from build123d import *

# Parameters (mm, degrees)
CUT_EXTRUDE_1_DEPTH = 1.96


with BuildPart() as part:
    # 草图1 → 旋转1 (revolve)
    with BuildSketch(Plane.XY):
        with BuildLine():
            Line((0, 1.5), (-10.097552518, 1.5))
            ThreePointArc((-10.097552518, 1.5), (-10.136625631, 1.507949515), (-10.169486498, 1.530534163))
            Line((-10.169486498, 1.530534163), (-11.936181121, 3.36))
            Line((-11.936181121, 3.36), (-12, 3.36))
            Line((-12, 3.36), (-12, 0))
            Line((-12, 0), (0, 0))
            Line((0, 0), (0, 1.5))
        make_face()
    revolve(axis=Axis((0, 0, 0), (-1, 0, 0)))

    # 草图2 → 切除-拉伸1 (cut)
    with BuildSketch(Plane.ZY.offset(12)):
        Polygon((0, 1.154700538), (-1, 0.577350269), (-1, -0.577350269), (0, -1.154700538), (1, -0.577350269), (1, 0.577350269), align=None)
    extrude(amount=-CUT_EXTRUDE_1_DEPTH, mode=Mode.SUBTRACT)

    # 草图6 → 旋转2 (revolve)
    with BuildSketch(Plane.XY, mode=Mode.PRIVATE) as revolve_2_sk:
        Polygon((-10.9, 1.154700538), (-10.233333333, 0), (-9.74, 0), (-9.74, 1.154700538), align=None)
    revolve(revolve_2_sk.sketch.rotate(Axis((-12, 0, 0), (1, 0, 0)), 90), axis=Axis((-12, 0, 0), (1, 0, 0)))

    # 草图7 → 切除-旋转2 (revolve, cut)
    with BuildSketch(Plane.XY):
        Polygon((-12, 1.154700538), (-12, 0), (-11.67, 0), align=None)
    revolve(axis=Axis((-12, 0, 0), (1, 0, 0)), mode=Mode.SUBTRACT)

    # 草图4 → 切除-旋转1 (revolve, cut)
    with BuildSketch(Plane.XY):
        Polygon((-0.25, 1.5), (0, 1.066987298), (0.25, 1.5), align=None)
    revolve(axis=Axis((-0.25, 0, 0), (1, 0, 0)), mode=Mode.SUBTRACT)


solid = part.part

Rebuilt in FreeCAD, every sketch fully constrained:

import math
import FreeCAD as App
import Part
import Sketcher
from FreeCAD import Vector
Q = App.Units.Quantity


def add_polygon(sketch, points):
    """Adds a closed chain of lines whose ends are joined by coincident constraints."""
    first, n = sketch.GeometryCount, len(points)
    for a, b in zip(points, points[1:] + points[:1]):
        sketch.addGeometry(Part.LineSegment(App.Vector(*a, 0), App.Vector(*b, 0)), False)
    for i in range(n):
        sketch.addConstraint(Sketcher.Constraint("Coincident", first + i, 2, first + (i + 1) % n, 1))

doc = App.newDocument("Part")
body = doc.addObject("PartDesign::Body", "Body")

# Sketch on XY plane
sketch1 = body.newObject("Sketcher::SketchObject", "Sketch")
sketch1.AttachmentSupport = (doc.getObject("XY_Plane"), [""])
sketch1.MapMode = "FlatFace"
sketch1.addGeometry(Part.LineSegment(Vector(0, 1.5, 0), Vector(-10.1, 1.5, 0)), False)
sketch1.addGeometry(Part.ArcOfCircle(Part.Circle(Vector(-10.1, 1.6, 0), Vector(0, 0, 1), 0.1), math.radians(-136), math.radians(-90)), False)
sketch1.addGeometry(Part.LineSegment(Vector(-10.17, 1.53, 0), Vector(-11.94, 3.36, 0)), False)
sketch1.addGeometry(Part.LineSegment(Vector(-11.94, 3.36, 0), Vector(-12, 3.36, 0)), False)
sketch1.addGeometry(Part.LineSegment(Vector(-12, 3.36, 0), Vector(-12, 0, 0)), False)
sketch1.addGeometry(Part.LineSegment(Vector(-12, 0, 0), Vector(0, 0, 0)), False)
sketch1.addGeometry(Part.LineSegment(Vector(0, 0, 0), Vector(0, 1.5, 0)), False)
sketch1.addConstraint(Sketcher.Constraint("Tangent", 0, 2, 1, 2))
sketch1.addConstraint(Sketcher.Constraint("Tangent", 1, 1, 2, 1))
sketch1.addConstraint(Sketcher.Constraint("Coincident", 2, 2, 3, 1))
sketch1.addConstraint(Sketcher.Constraint("Coincident", 3, 2, 4, 1))
sketch1.addConstraint(Sketcher.Constraint("Coincident", 4, 2, 5, 1))
sketch1.addConstraint(Sketcher.Constraint("Coincident", 5, 2, 6, 1))
sketch1.addConstraint(Sketcher.Constraint("Coincident", 6, 2, 0, 1))
sketch1.addConstraint(Sketcher.Constraint("Horizontal", 0))
sketch1.addConstraint(Sketcher.Constraint("Horizontal", 3))
sketch1.addConstraint(Sketcher.Constraint("Vertical", 4))
sketch1.addConstraint(Sketcher.Constraint("Horizontal", 5))
sketch1.addConstraint(Sketcher.Constraint("Vertical", 6))
sketch1.addConstraint(Sketcher.Constraint("Coincident", 5, 2, -1, 1))
sketch1.addConstraint(Sketcher.Constraint("Radius", 1, 0.1))
sketch1.addConstraint(Sketcher.Constraint("DistanceX", 5, 1, 5, 2, 12.0))
sketch1.addConstraint(Sketcher.Constraint("Angle", 2, Q("134 deg")))
sketch1.addConstraint(Sketcher.Constraint("DistanceY", 6, 1, 6, 2, 1.5))
sketch1.addConstraint(Sketcher.Constraint("DistanceY", 4, 2, 4, 1, 3.36))
sketch1.addConstraint(Sketcher.Constraint("DistanceX", 3, 2, 3, 1, 0.063819))
revolution = body.newObject("PartDesign::Revolution", "Revolution")
revolution.Profile = sketch1
revolution.ReferenceAxis = (sketch1, ["H_Axis"])
revolution.Angle = 360

# Sketch on YZ plane
sketch2 = body.newObject("Sketcher::SketchObject", "Sketch001")
sketch2.AttachmentSupport = (doc.getObject("YZ_Plane"), [""])
sketch2.MapMode = "FlatFace"
sketch2.AttachmentOffset = App.Placement(Vector(0, 0, -12), App.Rotation())
add_polygon(sketch2, [(1.2, 0), (0.6, -1), (-0.6, -1), (-1.2, 0), (-0.6, 1), (0.6, 1)])  # lines 0-5
sketch2.addConstraint(Sketcher.Constraint("Horizontal", 1))
sketch2.addConstraint(Sketcher.Constraint("Horizontal", 4))
sketch2.addConstraint(Sketcher.Constraint("Symmetric", 0, 2, 3, 2, -1, 1))
sketch2.addConstraint(Sketcher.Constraint("Symmetric", 2, 2, 5, 2, -1, 1))
sketch2.addConstraint(Sketcher.Constraint("PointOnObject", 2, 2, -1))
sketch2.addConstraint(Sketcher.Constraint("Parallel", 2, 5))
sketch2.addConstraint(Sketcher.Constraint("Vertical", 1, 2, 3, 2))
sketch2.addConstraint(Sketcher.Constraint("Angle", 0, Q("-120 deg")))
sketch2.addConstraint(Sketcher.Constraint("DistanceY", 0, 2, -1, 1, 1.0))
sketch2.addConstraint(Sketcher.Constraint("DistanceX", 1, 2, 1, 1, 1.154701))
pocket1 = body.newObject("PartDesign::Pocket", "Pocket")
pocket1.Profile = sketch2
pocket1.Length = 1.96
pocket1.Reversed = True

# Sketch on XY plane
sketch3 = body.newObject("Sketcher::SketchObject", "Sketch002")
sketch3.AttachmentSupport = (doc.getObject("XY_Plane"), [""])
sketch3.MapMode = "FlatFace"
add_polygon(sketch3, [(-10.9, 1.15), (-10.23, 0), (-9.74, 0), (-9.74, 1.15)])  # lines 0-3
sketch3.addConstraint(Sketcher.Constraint("Horizontal", 1))
sketch3.addConstraint(Sketcher.Constraint("Vertical", 2))
sketch3.addConstraint(Sketcher.Constraint("Horizontal", 3))
sketch3.addConstraint(Sketcher.Constraint("PointOnObject", 0, 2, -1))
sketch3.addConstraint(Sketcher.Constraint("Angle", 0, Q("-60 deg")))
sketch3.addConstraint(Sketcher.Constraint("DistanceX", 3, 2, 3, 1, 1.16))
sketch3.addConstraint(Sketcher.Constraint("DistanceX", 3, 2, -1, 1, 10.9))
sketch3.addConstraint(Sketcher.Constraint("DistanceY", 2, 1, 2, 2, 1.154701))
revolution2 = body.newObject("PartDesign::Revolution", "Revolution001")
revolution2.Profile = sketch3
revolution2.ReferenceAxis = (sketch3, ["H_Axis"])
revolution2.Angle = 360

# Sketch on XY plane
sketch4 = body.newObject("Sketcher::SketchObject", "Sketch003")
sketch4.AttachmentSupport = (doc.getObject("XY_Plane"), [""])
sketch4.MapMode = "FlatFace"
add_polygon(sketch4, [(-12, 1.15), (-12, 0), (-11.67, 0)])  # lines 0-2
sketch4.addConstraint(Sketcher.Constraint("Vertical", 0))
sketch4.addConstraint(Sketcher.Constraint("Horizontal", 1))
sketch4.addConstraint(Sketcher.Constraint("PointOnObject", 0, 2, -1))
sketch4.addConstraint(Sketcher.Constraint("DistanceX", 0, 2, -1, 1, 12.0))
sketch4.addConstraint(Sketcher.Constraint("DistanceX", 1, 1, 1, 2, 0.33))
sketch4.addConstraint(Sketcher.Constraint("DistanceY", 0, 2, 0, 1, 1.154701))
groove = body.newObject("PartDesign::Groove", "Groove")
groove.Profile = sketch4
groove.ReferenceAxis = (sketch4, ["H_Axis"])
groove.Angle = 360

# Sketch on XY plane
sketch5 = body.newObject("Sketcher::SketchObject", "Sketch004")
sketch5.AttachmentSupport = (doc.getObject("XY_Plane"), [""])
sketch5.MapMode = "FlatFace"
add_polygon(sketch5, [(-0.2, 1.5), (0, 1.1), (0.2, 1.5)])  # lines 0-2
sketch5.addConstraint(Sketcher.Constraint("Horizontal", 2))
sketch5.addConstraint(Sketcher.Constraint("PointOnObject", 0, 2, -2))
sketch5.addConstraint(Sketcher.Constraint("Equal", 0, 1))
sketch5.addConstraint(Sketcher.Constraint("Angle", 0, Q("-60 deg")))
sketch5.addConstraint(Sketcher.Constraint("DistanceX", 2, 2, 2, 1, 0.5))
sketch5.addConstraint(Sketcher.Constraint("DistanceY", -1, 1, 1, 2, 1.5))
groove2 = body.newObject("PartDesign::Groove", "Groove001")
groove2.Profile = sketch5
groove2.ReferenceAxis = (sketch5, ["H_Axis"])
groove2.Angle = 360

doc.recompute()
